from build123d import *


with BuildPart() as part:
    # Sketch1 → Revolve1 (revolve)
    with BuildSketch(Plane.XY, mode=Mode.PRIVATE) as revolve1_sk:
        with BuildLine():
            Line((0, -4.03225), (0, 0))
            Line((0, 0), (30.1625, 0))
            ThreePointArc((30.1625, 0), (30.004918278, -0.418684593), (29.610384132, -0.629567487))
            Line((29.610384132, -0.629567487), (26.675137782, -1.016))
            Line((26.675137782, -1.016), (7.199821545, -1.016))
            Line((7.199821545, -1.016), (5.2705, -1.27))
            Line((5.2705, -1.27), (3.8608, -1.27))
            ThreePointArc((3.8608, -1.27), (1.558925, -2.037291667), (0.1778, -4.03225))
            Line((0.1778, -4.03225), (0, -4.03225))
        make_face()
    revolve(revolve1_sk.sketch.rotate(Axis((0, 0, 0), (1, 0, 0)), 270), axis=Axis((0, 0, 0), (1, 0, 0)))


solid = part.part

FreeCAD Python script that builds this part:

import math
import FreeCAD as App
import Part
import Sketcher

V = App.Vector
Q = App.Units.Quantity

doc = App.newDocument("Part")
body = doc.addObject("PartDesign::Body", "Body")

# Sketch on XY plane
sketch1 = body.newObject("Sketcher::SketchObject", "Sketch")
sketch1.AttachmentSupport = (doc.getObject("XY_Plane"), [""])
sketch1.MapMode = "FlatFace"
sketch1.addGeometry(Part.LineSegment(V(0, 0, 0), V(0, -4.03, 0)), False)
sketch1.addGeometry(Part.LineSegment(V(0, -4.03, 0), V(0.18, -4.03, 0)), False)
sketch1.addGeometry(Part.ArcOfCircle(Part.Circle(V(3.86, -5.11, 0), V(0, 0, 1), 3.84), math.radians(90), math.radians(164)), False)
sketch1.addGeometry(Part.LineSegment(V(3.86, -1.27, 0), V(5.27, -1.27, 0)), False)
sketch1.addGeometry(Part.LineSegment(V(5.27, -1.27, 0), V(7.2, -1.02, 0)), False)
sketch1.addGeometry(Part.LineSegment(V(7.2, -1.02, 0), V(26.68, -1.02, 0)), False)
sketch1.addGeometry(Part.LineSegment(V(26.68, -1.02, 0), V(29.61, -0.63, 0)), False)
sketch1.addGeometry(Part.ArcOfCircle(Part.Circle(V(29.53, 0, 0), V(0, 0, 1), 0.63), math.radians(-83), math.radians(0)), False)
sketch1.addGeometry(Part.LineSegment(V(30.16, 0, 0), V(0, 0, 0)), False)
sketch1.addConstraint(Sketcher.Constraint("Coincident", 0, 2, 1, 1))
sketch1.addConstraint(Sketcher.Constraint("Coincident", 1, 2, 2, 2))
sketch1.addConstraint(Sketcher.Constraint("Tangent", 2, 1, 3, 1))
sketch1.addConstraint(Sketcher.Constraint("Coincident", 3, 2, 4, 1))
sketch1.addConstraint(Sketcher.Constraint("Coincident", 4, 2, 5, 1))
sketch1.addConstraint(Sketcher.Constraint("Coincident", 5, 2, 6, 1))
sketch1.addConstraint(Sketcher.Constraint("Tangent", 6, 2, 7, 1))
sketch1.addConstraint(Sketcher.Constraint("Coincident", 7, 2, 8, 1))
sketch1.addConstraint(Sketcher.Constraint("Coincident", 8, 2, 0, 1))
sketch1.addConstraint(Sketcher.Constraint("Vertical", 0))
sketch1.addConstraint(Sketcher.Constraint("Horizontal", 1))
sketch1.addConstraint(Sketcher.Constraint("Horizontal", 3))
sketch1.addConstraint(Sketcher.Constraint("Horizontal", 5))
sketch1.addConstraint(Sketcher.Constraint("Horizontal", 8))
sketch1.addConstraint(Sketcher.Constraint("Coincident", 8, 2, -1, 1))
sketch1.addConstraint(Sketcher.Constraint("PointOnObject", 7, 3, -1))
sketch1.addConstraint(Sketcher.Constraint("Parallel", 4, 6))
sketch1.addConstraint(Sketcher.Constraint("Radius", 7, Q("0.025 in")))
sketch1.addConstraint(Sketcher.Constraint("Angle", 4, Q("7.5 deg")))
sketch1.addConstraint(Sketcher.Constraint("DistanceX", 1, 1, 1, 2, Q("0.007 in")))
sketch1.addConstraint(Sketcher.Constraint("DistanceX", 8, 2, 8, 1, Q("1.1875 in")))
sketch1.addConstraint(Sketcher.Constraint("DistanceY", 2, 1, -1, 1, Q("0.05 in")))
sketch1.addConstraint(Sketcher.Constraint("DistanceY", 4, 2, -1, 1, Q("0.04 in")))
sketch1.addConstraint(Sketcher.Constraint("DistanceX", 3, 2, 7, 2, Q("0.98 in")))
sketch1.addConstraint(Sketcher.Constraint("DistanceX", 3, 1, 3, 2, Q("0.0555 in")))
sketch1.addConstraint(Sketcher.Constraint("Radius", 2, Q("3.836458 mm")))
revolution = body.newObject("PartDesign::Revolution", "Revolution")
revolution.Profile = sketch1
revolution.ReferenceAxis = (sketch1, ["H_Axis"])
revolution.Angle = 360

doc.recompute()
